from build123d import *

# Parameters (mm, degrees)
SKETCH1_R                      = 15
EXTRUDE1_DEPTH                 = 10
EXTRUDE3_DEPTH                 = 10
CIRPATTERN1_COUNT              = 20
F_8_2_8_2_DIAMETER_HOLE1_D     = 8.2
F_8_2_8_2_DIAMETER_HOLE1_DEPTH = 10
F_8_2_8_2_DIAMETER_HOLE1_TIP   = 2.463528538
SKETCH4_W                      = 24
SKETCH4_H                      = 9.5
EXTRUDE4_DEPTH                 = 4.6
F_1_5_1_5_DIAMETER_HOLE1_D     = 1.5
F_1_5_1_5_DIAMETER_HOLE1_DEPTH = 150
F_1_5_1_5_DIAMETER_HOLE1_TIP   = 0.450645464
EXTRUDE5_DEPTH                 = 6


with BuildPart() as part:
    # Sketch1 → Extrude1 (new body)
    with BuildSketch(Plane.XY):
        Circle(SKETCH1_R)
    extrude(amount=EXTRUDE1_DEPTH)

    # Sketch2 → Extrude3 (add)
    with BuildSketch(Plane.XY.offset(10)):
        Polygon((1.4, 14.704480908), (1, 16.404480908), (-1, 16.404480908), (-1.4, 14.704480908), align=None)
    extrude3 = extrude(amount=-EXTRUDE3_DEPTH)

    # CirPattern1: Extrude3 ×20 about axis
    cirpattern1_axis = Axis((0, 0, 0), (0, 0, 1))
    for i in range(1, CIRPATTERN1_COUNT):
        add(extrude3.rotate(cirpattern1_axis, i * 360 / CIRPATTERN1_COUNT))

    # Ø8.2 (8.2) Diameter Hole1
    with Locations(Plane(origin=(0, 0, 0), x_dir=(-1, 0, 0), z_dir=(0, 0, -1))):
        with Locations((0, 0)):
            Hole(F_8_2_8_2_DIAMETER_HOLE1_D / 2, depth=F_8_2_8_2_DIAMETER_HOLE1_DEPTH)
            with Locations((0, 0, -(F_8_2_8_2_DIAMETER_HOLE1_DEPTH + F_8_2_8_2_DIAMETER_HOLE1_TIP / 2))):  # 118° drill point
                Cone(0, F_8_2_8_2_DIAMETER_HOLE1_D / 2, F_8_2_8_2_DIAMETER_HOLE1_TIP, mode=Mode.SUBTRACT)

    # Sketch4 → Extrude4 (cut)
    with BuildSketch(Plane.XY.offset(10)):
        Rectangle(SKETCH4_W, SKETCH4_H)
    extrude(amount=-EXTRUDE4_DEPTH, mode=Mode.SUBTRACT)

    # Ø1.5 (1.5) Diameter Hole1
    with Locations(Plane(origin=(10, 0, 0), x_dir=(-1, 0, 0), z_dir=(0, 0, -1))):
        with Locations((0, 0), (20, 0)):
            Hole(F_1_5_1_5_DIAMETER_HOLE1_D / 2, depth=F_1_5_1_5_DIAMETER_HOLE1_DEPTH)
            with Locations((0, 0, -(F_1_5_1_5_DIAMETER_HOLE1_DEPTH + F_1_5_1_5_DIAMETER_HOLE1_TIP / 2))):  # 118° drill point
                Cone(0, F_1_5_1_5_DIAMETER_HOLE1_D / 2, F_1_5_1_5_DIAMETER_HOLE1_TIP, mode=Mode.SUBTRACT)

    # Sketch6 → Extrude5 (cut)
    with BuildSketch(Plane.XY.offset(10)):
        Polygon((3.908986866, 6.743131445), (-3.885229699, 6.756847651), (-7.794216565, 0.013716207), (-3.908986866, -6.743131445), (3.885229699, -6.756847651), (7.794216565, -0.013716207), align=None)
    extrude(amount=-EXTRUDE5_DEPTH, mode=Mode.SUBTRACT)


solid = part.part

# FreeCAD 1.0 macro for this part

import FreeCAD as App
import Part
import Sketcher
from FreeCAD import Vector
Q = App.Units.Quantity


def add_polygon(sketch, points):
    """Adds a closed chain of lines whose ends are joined by coincident constraints."""
    first, n = sketch.GeometryCount, len(points)
    for a, b in zip(points, points[1:] + points[:1]):
        sketch.addGeometry(Part.LineSegment(App.Vector(*a, 0), App.Vector(*b, 0)), False)
    for i in range(n):
        sketch.addConstraint(Sketcher.Constraint("Coincident", first + i, 2, first + (i + 1) % n, 1))

doc = App.newDocument("Part")
body = doc.addObject("PartDesign::Body", "Body")

# Sketch on XY plane
sketch1 = body.newObject("Sketcher::SketchObject", "Sketch")
sketch1.AttachmentSupport = (doc.getObject("XY_Plane"), [""])
sketch1.MapMode = "FlatFace"
sketch1.addGeometry(Part.Circle(Vector(0, 0, 0), Vector(0, 0, 1), 15), False)
sketch1.addConstraint([
    Sketcher.Constraint("Coincident", 0, 3, -1, 1),
    Sketcher.Constraint("Diameter", 0, Q("30 mm")),
])
pad1 = body.newObject("PartDesign::Pad", "Pad")
pad1.Profile = sketch1
pad1.Length = 10

# Sketch on XY plane
sketch2 = body.newObject("Sketcher::SketchObject", "Sketch001")
sketch2.AttachmentSupport = (doc.getObject("XY_Plane"), [""])
sketch2.MapMode = "FlatFace"
sketch2.AttachmentOffset = App.Placement(Vector(0, 0, 10), App.Rotation())
add_polygon(sketch2, [(1.4, 14.7), (1, 16.4), (-1, 16.4), (-1.4, 14.7)])  # lines 0-3
sketch2.addConstraint([
    Sketcher.Constraint("Horizontal", 1),
    Sketcher.Constraint("Horizontal", 3),
    Sketcher.Constraint("Equal", 0, 2),
    Sketcher.Constraint("DistanceX", 1, 2, 1, 1, Q("2 mm")),
    Sketcher.Constraint("DistanceX", 3, 1, 3, 2, Q("2.8 mm")),
    Sketcher.Constraint("DistanceX", -1, 1, 0, 2, Q("1 mm")),
    Sketcher.Constraint("DistanceY", 2, 2, 1, 2, Q("1.7 mm")),
    Sketcher.Constraint("DistanceY", -1, 1, 0, 2, Q("16.404481 mm")),
])
pad2 = body.newObject("PartDesign::Pad", "Pad001")
pad2.Profile = sketch2
pad2.Length = 10
pad2.Reversed = True
doc.recompute()

polarpattern = body.newObject("PartDesign::PolarPattern", "PolarPattern")
polarpattern.Originals = [pad2]
polarpattern.Axis = (doc.getObject("Z_Axis"), [""])
polarpattern.Angle = 360
polarpattern.Occurrences = 20
body.Tip = polarpattern

# Sketch on XY plane
sketch3 = body.newObject("Sketcher::SketchObject", "Sketch002")
sketch3.AttachmentSupport = (doc.getObject("XY_Plane"), [""])
sketch3.MapMode = "FlatFace"
sketch3.addGeometry(Part.Circle(Vector(0, 0, 0), Vector(0, 0, 1), 4.1), False)
sketch3.addConstraint([
    Sketcher.Constraint("Coincident", 0, 3, -1, 1),
    Sketcher.Constraint("Diameter", 0, Q("8.2 mm")),
])
doc.recompute()
hole = body.newObject("PartDesign::Hole", "Hole")
hole.Profile = sketch3
hole.ThreadType = "None"
hole.Diameter = 8.2
hole.DepthType = "Dimension"
hole.Depth = 10
hole.DrillPoint = "Angled"
hole.DrillPointAngle = 118
hole.Reversed = True

# Sketch on XY plane
sketch4 = body.newObject("Sketcher::SketchObject", "Sketch003")
sketch4.AttachmentSupport = (doc.getObject("XY_Plane"), [""])
sketch4.MapMode = "FlatFace"
sketch4.AttachmentOffset = App.Placement(Vector(0, 0, 10), App.Rotation())
add_polygon(sketch4, [(-12, 5), (-12, -5), (12, -5), (12, 5)])  # lines 0-3
sketch4.addConstraint([
    Sketcher.Constraint("Vertical", 0),
    Sketcher.Constraint("Horizontal", 1),
    Sketcher.Constraint("Vertical", 2),
    Sketcher.Constraint("Horizontal", 3),
    Sketcher.Constraint("Symmetric", 0, 2, 2, 2, -1, 1),
    Sketcher.Constraint("DistanceX", 1, 1, 1, 2, Q("24 mm")),
    Sketcher.Constraint("DistanceY", 0, 2, 0, 1, Q("9.5 mm")),
])
pocket1 = body.newObject("PartDesign::Pocket", "Pocket")
pocket1.Profile = sketch4
pocket1.Length = 4.6

# Sketch on XY plane
sketch5 = body.newObject("Sketcher::SketchObject", "Sketch004")
sketch5.AttachmentSupport = (doc.getObject("XY_Plane"), [""])
sketch5.MapMode = "FlatFace"
sketch5.addGeometry([
    Part.Circle(Vector(10, 0, 0), Vector(0, 0, 1), 0.8),
    Part.Circle(Vector(-10, 0, 0), Vector(0, 0, 1), 0.8),
], False)
sketch5.addConstraint([
    Sketcher.Constraint("Equal", 0, 1),
    Sketcher.Constraint("Symmetric", 0, 3, 1, 3, -1, 1),
    Sketcher.Constraint("PointOnObject", 0, 3, -1),
    Sketcher.Constraint("Diameter", 0, Q("1.5 mm")),
    Sketcher.Constraint("DistanceX", -1, 1, 0, 3, Q("10 mm")),
])
doc.recompute()
hole2 = body.newObject("PartDesign::Hole", "Hole001")
hole2.Profile = sketch5
hole2.ThreadType = "None"
hole2.Diameter = 1.5
hole2.DepthType = "Dimension"
hole2.Depth = 150
hole2.DrillPoint = "Angled"
hole2.DrillPointAngle = 118
hole2.Reversed = True

# Sketch on XY plane
sketch6 = body.newObject("Sketcher::SketchObject", "Sketch005")
sketch6.AttachmentSupport = (doc.getObject("XY_Plane"), [""])
sketch6.MapMode = "FlatFace"
sketch6.AttachmentOffset = App.Placement(Vector(0, 0, 10), App.Rotation())
add_polygon(sketch6, [(4, 7), (-4, 7), (-8, 0), (-4, -7), (4, -7), (8, 0)])  # lines 0-5
sketch6.addConstraint([
    Sketcher.Constraint("Symmetric", 0, 2, 3, 2, -1, 1),
    Sketcher.Constraint("Symmetric", 1, 2, 4, 2, -1, 1),
    Sketcher.Constraint("Symmetric", 2, 2, 5, 2, -1, 1),
    Sketcher.Constraint("Equal", 0, 1),
    Sketcher.Constraint("Equal", 1, 2),
    Sketcher.Constraint("Distance", 0, Q("7.794229 mm")),
    Sketcher.Constraint("DistanceX", 0, 2, -1, 1, Q("3.88523 mm")),
    Sketcher.Constraint("DistanceY", 2, 2, -1, 1, Q("6.743131 mm")),
    Sketcher.Constraint("DistanceY", 1, 2, 0, 2, Q("6.743131 mm")),
])
pocket2 = body.newObject("PartDesign::Pocket", "Pocket001")
pocket2.Profile = sketch6
pocket2.Length = 6

doc.recompute()
